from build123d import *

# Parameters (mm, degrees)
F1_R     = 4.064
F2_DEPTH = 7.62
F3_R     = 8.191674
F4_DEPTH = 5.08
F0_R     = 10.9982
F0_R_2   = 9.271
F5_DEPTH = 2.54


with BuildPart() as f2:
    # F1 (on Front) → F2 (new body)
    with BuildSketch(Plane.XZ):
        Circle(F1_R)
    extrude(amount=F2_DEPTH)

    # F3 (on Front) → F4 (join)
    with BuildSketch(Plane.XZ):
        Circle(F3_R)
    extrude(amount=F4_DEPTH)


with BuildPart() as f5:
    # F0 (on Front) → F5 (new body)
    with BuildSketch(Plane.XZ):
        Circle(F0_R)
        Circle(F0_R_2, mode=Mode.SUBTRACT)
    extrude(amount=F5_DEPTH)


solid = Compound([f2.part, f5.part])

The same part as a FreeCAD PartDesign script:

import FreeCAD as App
import Part
import Sketcher
from FreeCAD import Vector
Q = App.Units.Quantity

doc = App.newDocument("Part")
body = doc.addObject("PartDesign::Body", "Body")

sketch1 = doc.addObject("Sketcher::SketchObject", "Sketch")
body.addObject(sketch1)
sketch1.AttachmentSupport = (doc.XZ_Plane, [""])
sketch1.MapMode = "FlatFace"
sketch1.addGeometry(Part.Circle(Vector(0, 0, 0), Vector(0, 0, 1), 4.1), False)
sketch1.addConstraint([
    Sketcher.Constraint("Coincident", 0, 3, -1, 1),
    Sketcher.Constraint("Diameter", 0, Q("0.32 in")),
])
pad1 = doc.addObject("PartDesign::Pad", "Pad")
body.addObject(pad1)
pad1.Profile = sketch1
pad1.Length = Q("0.3 in")

sketch2 = doc.addObject("Sketcher::SketchObject", "Sketch001")
body.addObject(sketch2)
sketch2.AttachmentSupport = (doc.XZ_Plane, [""])
sketch2.MapMode = "FlatFace"
sketch2.addGeometry(Part.Circle(Vector(0, 0, 0), Vector(0, 0, 1), 8), False)
sketch2.addConstraint([
    Sketcher.Constraint("Coincident", 0, 3, -1, 1),
    Sketcher.Constraint("Diameter", 0, Q("16.383348 mm")),
])
pad2 = doc.addObject("PartDesign::Pad", "Pad001")
body.addObject(pad2)
pad2.Profile = sketch2
pad2.Length = Q("0.2 in")
body2 = doc.addObject("PartDesign::Body", "Body001")

sketch3 = doc.addObject("Sketcher::SketchObject", "Sketch002")
body2.addObject(sketch3)
sketch3.AttachmentSupport = (doc.getObject("XZ_Plane001"), [""])
sketch3.MapMode = "FlatFace"
sketch3.addGeometry([
    Part.Circle(Vector(0, 0, 0), Vector(0, 0, 1), 11),
    Part.Circle(Vector(0, 0, 0), Vector(0, 0, 1), 9),
], False)
sketch3.addConstraint([
    Sketcher.Constraint("Coincident", 0, 3, -1, 1),
    Sketcher.Constraint("Coincident", 1, 3, -1, 1),
    Sketcher.Constraint("Diameter", 1, Q("0.73 in")),
    Sketcher.Constraint("Diameter", 0, Q("0.866 in")),
])
pad3 = doc.addObject("PartDesign::Pad", "Pad002")
body2.addObject(pad3)
pad3.Profile = sketch3
pad3.Length = Q("0.1 in")

doc.recompute()
